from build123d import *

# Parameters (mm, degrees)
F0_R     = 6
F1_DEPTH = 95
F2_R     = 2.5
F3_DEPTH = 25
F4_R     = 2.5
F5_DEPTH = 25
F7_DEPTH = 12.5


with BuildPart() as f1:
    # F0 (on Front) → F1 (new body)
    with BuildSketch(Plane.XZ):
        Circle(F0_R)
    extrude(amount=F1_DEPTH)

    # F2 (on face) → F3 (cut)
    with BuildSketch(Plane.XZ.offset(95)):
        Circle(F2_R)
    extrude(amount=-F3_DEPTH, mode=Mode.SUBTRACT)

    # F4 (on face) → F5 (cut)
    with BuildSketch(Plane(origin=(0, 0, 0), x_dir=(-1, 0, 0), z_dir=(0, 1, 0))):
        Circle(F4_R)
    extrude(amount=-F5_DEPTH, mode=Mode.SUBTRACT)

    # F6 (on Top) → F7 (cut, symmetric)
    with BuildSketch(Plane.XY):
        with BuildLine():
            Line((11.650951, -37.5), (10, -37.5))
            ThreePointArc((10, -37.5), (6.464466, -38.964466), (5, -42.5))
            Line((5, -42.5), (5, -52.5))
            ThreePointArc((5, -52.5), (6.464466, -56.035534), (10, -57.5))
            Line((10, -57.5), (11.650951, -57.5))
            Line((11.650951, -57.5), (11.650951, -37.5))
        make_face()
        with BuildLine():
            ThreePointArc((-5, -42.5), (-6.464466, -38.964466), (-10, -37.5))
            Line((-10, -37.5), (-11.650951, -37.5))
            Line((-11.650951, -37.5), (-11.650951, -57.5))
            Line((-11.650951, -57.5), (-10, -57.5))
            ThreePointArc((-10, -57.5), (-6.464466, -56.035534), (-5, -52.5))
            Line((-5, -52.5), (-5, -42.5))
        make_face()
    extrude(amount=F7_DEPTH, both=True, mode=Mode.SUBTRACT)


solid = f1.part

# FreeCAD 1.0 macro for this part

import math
import FreeCAD as App
import Part
import Sketcher

V = App.Vector

doc = App.newDocument("Part")
body = doc.addObject("PartDesign::Body", "Body")

sketch1 = body.newObject("Sketcher::SketchObject", "Sketch")
sketch1.AttachmentSupport = (doc.getObject("XZ_Plane"), [""])
sketch1.MapMode = "FlatFace"
sketch1.addGeometry(Part.Circle(V(0, 0, 0), V(0, 0, 1), 6), False)
sketch1.addConstraint(Sketcher.Constraint("Coincident", 0, 3, -1, 1))
sketch1.addConstraint(Sketcher.Constraint("Diameter", 0, 12.0))
pad1 = body.newObject("PartDesign::Pad", "Pad")
pad1.Profile = sketch1
pad1.Length = 95

sketch2 = body.newObject("Sketcher::SketchObject", "Sketch001")
sketch2.AttachmentSupport = (doc.getObject("XZ_Plane"), [""])
sketch2.MapMode = "FlatFace"
sketch2.AttachmentOffset = App.Placement(V(0, 0, 95), App.Rotation())
sketch2.addGeometry(Part.Circle(V(0, 0, 0), V(0, 0, 1), 2.5), False)
sketch2.addConstraint(Sketcher.Constraint("Coincident", 0, 3, -1, 1))
sketch2.addConstraint(Sketcher.Constraint("Diameter", 0, 5.0))
pocket1 = body.newObject("PartDesign::Pocket", "Pocket")
pocket1.Profile = sketch2
pocket1.Length = 25

sketch3 = body.newObject("Sketcher::SketchObject", "Sketch002")
sketch3.AttachmentSupport = (doc.getObject("XZ_Plane"), [""])
sketch3.MapMode = "FlatFace"
sketch3.addGeometry(Part.Circle(V(0, 0, 0), V(0, 0, 1), 2.5), False)
sketch3.addConstraint(Sketcher.Constraint("Coincident", 0, 3, -1, 1))
sketch3.addConstraint(Sketcher.Constraint("Diameter", 0, 5.0))
pocket2 = body.newObject("PartDesign::Pocket", "Pocket001")
pocket2.Profile = sketch3
pocket2.Length = 25
pocket2.Reversed = True

sketch4 = body.newObject("Sketcher::SketchObject", "Sketch003")
sketch4.AttachmentSupport = (doc.getObject("XY_Plane"), [""])
sketch4.MapMode = "FlatFace"
sketch4.addGeometry(Part.LineSegment(V(11.7, -37.5, 0), V(10, -37.5, 0)), False)
sketch4.addGeometry(Part.ArcOfCircle(Part.Circle(V(10, -42.5, 0), V(0, 0, 1), 5), math.radians(90), math.radians(180)), False)
sketch4.addGeometry(Part.LineSegment(V(5, -42.5, 0), V(5, -52.5, 0)), False)
sketch4.addGeometry(Part.ArcOfCircle(Part.Circle(V(10, -52.5, 0), V(0, 0, 1), 5), math.radians(180), math.radians(270)), False)
sketch4.addGeometry(Part.LineSegment(V(10, -57.5, 0), V(11.7, -57.5, 0)), False)
sketch4.addGeometry(Part.LineSegment(V(11.7, -57.5, 0), V(11.7, -37.5, 0)), False)
sketch4.addGeometry(Part.ArcOfCircle(Part.Circle(V(-10, -42.5, 0), V(0, 0, 1), 5), math.radians(0), math.radians(90)), False)
sketch4.addGeometry(Part.LineSegment(V(-10, -37.5, 0), V(-11.7, -37.5, 0)), False)
sketch4.addGeometry(Part.LineSegment(V(-11.7, -37.5, 0), V(-11.7, -57.5, 0)), False)
sketch4.addGeometry(Part.LineSegment(V(-11.7, -57.5, 0), V(-10, -57.5, 0)), False)
sketch4.addGeometry(Part.ArcOfCircle(Part.Circle(V(-10, -52.5, 0), V(0, 0, 1), 5), math.radians(-90), math.radians(0)), False)
sketch4.addGeometry(Part.LineSegment(V(-5, -52.5, 0), V(-5, -42.5, 0)), False)
sketch4.addConstraint(Sketcher.Constraint("Tangent", 0, 2, 1, 1))
sketch4.addConstraint(Sketcher.Constraint("Tangent", 1, 2, 2, 1))
sketch4.addConstraint(Sketcher.Constraint("Tangent", 2, 2, 3, 1))
sketch4.addConstraint(Sketcher.Constraint("Tangent", 3, 2, 4, 1))
sketch4.addConstraint(Sketcher.Constraint("Coincident", 4, 2, 5, 1))
sketch4.addConstraint(Sketcher.Constraint("Coincident", 5, 2, 0, 1))
sketch4.addConstraint(Sketcher.Constraint("Tangent", 6, 2, 7, 1))
sketch4.addConstraint(Sketcher.Constraint("Coincident", 7, 2, 8, 1))
sketch4.addConstraint(Sketcher.Constraint("Coincident", 8, 2, 9, 1))
sketch4.addConstraint(Sketcher.Constraint("Tangent", 9, 2, 10, 1))
sketch4.addConstraint(Sketcher.Constraint("Tangent", 10, 2, 11, 1))
sketch4.addConstraint(Sketcher.Constraint("Tangent", 11, 2, 6, 1))
sketch4.addConstraint(Sketcher.Constraint("Horizontal", 0))
sketch4.addConstraint(Sketcher.Constraint("Vertical", 2))
sketch4.addConstraint(Sketcher.Constraint("Horizontal", 4))
sketch4.addConstraint(Sketcher.Constraint("Vertical", 5))
sketch4.addConstraint(Sketcher.Constraint("Horizontal", 7))
sketch4.addConstraint(Sketcher.Constraint("Vertical", 8))
sketch4.addConstraint(Sketcher.Constraint("Horizontal", 9))
sketch4.addConstraint(Sketcher.Constraint("Vertical", 11))
sketch4.addConstraint(Sketcher.Constraint("Equal", 1, 3))
sketch4.addConstraint(Sketcher.Constraint("Equal", 3, 6))
sketch4.addConstraint(Sketcher.Constraint("Equal", 6, 10))
sketch4.addConstraint(Sketcher.Constraint("Symmetric", 1, 3, 6, 3, -2))
sketch4.addConstraint(Sketcher.Constraint("Symmetric", 4, 2, 8, 2, -2))
sketch4.addConstraint(Sketcher.Constraint("Radius", 1, 5.0))
sketch4.addConstraint(Sketcher.Constraint("DistanceY", 2, 2, 2, 1, 10.0))
sketch4.addConstraint(Sketcher.Constraint("DistanceX", -1, 1, 1, 3, 10.0))
sketch4.addConstraint(Sketcher.Constraint("DistanceY", 1, 3, -1, 1, 42.5))
sketch4.addConstraint(Sketcher.Constraint("DistanceX", 0, 2, 0, 1, 1.650951))
pocket3 = body.newObject("PartDesign::Pocket", "Pocket002")
pocket3.Profile = sketch4
pocket3.Length = 25
pocket3.Midplane = True

doc.recompute()
